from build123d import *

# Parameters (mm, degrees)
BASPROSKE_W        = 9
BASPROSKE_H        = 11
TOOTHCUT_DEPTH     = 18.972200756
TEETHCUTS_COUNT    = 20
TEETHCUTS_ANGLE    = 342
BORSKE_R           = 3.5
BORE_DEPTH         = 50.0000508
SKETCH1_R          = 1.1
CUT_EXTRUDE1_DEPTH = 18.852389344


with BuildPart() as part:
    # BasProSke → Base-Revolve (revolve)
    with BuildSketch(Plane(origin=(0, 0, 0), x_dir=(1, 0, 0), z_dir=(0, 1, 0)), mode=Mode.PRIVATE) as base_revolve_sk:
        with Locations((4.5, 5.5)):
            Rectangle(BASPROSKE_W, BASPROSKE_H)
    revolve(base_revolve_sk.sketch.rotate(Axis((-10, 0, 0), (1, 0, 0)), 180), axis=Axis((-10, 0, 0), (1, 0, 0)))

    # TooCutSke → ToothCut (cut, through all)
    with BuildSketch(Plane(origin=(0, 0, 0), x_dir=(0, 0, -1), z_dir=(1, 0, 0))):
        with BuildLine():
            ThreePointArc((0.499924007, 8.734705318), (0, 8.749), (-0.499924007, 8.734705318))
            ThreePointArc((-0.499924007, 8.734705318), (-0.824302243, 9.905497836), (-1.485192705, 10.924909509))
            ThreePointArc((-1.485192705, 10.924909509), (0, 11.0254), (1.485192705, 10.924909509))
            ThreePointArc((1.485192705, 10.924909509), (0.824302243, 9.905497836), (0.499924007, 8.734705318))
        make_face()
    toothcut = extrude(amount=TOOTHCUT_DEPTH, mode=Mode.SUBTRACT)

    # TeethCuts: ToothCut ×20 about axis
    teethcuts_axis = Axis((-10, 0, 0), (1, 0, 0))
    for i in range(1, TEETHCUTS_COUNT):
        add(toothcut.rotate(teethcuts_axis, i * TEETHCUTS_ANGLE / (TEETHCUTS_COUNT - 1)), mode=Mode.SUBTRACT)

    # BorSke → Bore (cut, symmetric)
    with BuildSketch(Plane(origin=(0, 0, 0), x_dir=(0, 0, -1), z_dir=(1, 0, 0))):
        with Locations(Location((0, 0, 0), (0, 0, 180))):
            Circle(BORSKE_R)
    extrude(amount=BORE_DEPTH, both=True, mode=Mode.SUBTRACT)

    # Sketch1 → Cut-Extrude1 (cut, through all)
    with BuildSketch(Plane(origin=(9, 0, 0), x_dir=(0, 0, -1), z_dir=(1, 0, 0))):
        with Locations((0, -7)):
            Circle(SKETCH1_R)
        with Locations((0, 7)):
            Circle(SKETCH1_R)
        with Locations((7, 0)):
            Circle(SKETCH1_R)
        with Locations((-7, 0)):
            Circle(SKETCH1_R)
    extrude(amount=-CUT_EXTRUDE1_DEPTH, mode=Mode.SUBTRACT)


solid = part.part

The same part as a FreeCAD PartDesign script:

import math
import FreeCAD as App
import Part
import Sketcher

V = App.Vector
Q = App.Units.Quantity


def add_polygon(sketch, points):
    """Adds a closed chain of lines whose ends are joined by coincident constraints."""
    first, n = sketch.GeometryCount, len(points)
    for a, b in zip(points, points[1:] + points[:1]):
        sketch.addGeometry(Part.LineSegment(App.Vector(*a, 0), App.Vector(*b, 0)), False)
    for i in range(n):
        sketch.addConstraint(Sketcher.Constraint("Coincident", first + i, 2, first + (i + 1) % n, 1))

doc = App.newDocument("Part")
params = doc.addObject("Spreadsheet::Sheet", "Params")
for row, (alias, value) in enumerate([
    ("sketch1_width", "9 mm"),
    ("sketch1_height", "11 mm"),
    ("revolution_angle", "360 deg"),
    ("sketch2_radius", "4 mm"),
    ("sketch3_diameter", "7 mm"),
    ("pocket2_length", "100.000102 mm"),
    ("sketch4_diameter", "2.2 mm"),
], start=1):
    params.set(f"A{row}", alias)
    params.set(f"B{row}", "=" + value)
    params.setAlias(f"B{row}", alias)

body = doc.addObject("PartDesign::Body", "Body")

sketch1 = body.newObject("Sketcher::SketchObject", "Sketch")
sketch1.AttachmentSupport = (doc.getObject("XZ_Plane"), [""])
sketch1.MapMode = "FlatFace"
add_polygon(sketch1, [(0, -11), (0, 0), (9, 0), (9, -11)])
sketch1.addConstraint([
    Sketcher.Constraint("Vertical", 0),
    Sketcher.Constraint("Horizontal", 1),
    Sketcher.Constraint("Vertical", 2),
    Sketcher.Constraint("Horizontal", 3),
    Sketcher.Constraint("Coincident", 0, 2, -1, 1),
    Sketcher.Constraint("DistanceX", 1, 1, 1, 2, Q("9 mm")),
    Sketcher.Constraint("DistanceY", 0, 1, 0, 2, Q("11 mm")),
])
sketch1.setExpression("Constraints[9]", "Params.sketch1_width")
sketch1.setExpression("Constraints[10]", "Params.sketch1_height")
revolution = body.newObject("PartDesign::Revolution", "Revolution")
revolution.Profile = sketch1
revolution.ReferenceAxis = (sketch1, ["H_Axis"])
revolution.setExpression("Angle", "Params.revolution_angle")

sketch2 = body.newObject("Sketcher::SketchObject", "Sketch001")
sketch2.AttachmentSupport = (doc.getObject("YZ_Plane"), [""])
sketch2.MapMode = "FlatFace"
sketch2.addGeometry([
    Part.ArcOfCircle(Part.Circle(V(0, 0, 0), V(0, 0, 1), 8.749), math.radians(-3.275705), math.radians(3.275705)),
    Part.ArcOfCircle(Part.Circle(V(8.264487, -4.47219, 0), V(0, 0, 1), 4), math.radians(48.309566), math.radians(83.249005)),
    Part.ArcOfCircle(Part.Circle(V(0, 0, 0), V(0, 0, 1), 11.0254), math.radians(-7.741647), math.radians(7.741647)),
    Part.ArcOfCircle(Part.Circle(V(8.264487, 4.47219, 0), V(0, 0, 1), 4), math.radians(-83.249005), math.radians(-48.309566)),
], False)
sketch2.addConstraint([
    Sketcher.Constraint("Coincident", 0, 1, 1, 2),
    Sketcher.Constraint("Coincident", 1, 1, 2, 1),
    Sketcher.Constraint("Coincident", 2, 2, 3, 2),
    Sketcher.Constraint("Coincident", 3, 1, 0, 2),
    Sketcher.Constraint("Coincident", 0, 3, -1, 1),
    Sketcher.Constraint("Coincident", 2, 3, -1, 1),
    Sketcher.Constraint("Equal", 1, 3),
    Sketcher.Constraint("Symmetric", 1, 3, 3, 3, -1),
    Sketcher.Constraint("Radius", 1, Q("4 mm")),
    Sketcher.Constraint("Radius", 0, Q("8.749 mm")),
    Sketcher.Constraint("Radius", 2, Q("11.0254 mm")),
    Sketcher.Constraint("DistanceY", 1, 3, -1, 1, Q("4.47219 mm")),
    Sketcher.Constraint("DistanceX", -1, 1, 1, 1, Q("10.92491 mm")),
])
sketch2.setExpression("Constraints[8]", "Params.sketch2_radius")
pocket1 = body.newObject("PartDesign::Pocket", "Pocket")
pocket1.Profile = sketch2
pocket1.Type = "ThroughAll"
pocket1.Reversed = True
doc.recompute()

polarpattern = body.newObject("PartDesign::PolarPattern", "PolarPattern")
polarpattern.Originals = [pocket1]
polarpattern.Axis = (doc.getObject("X_Axis"), [""])
polarpattern.Angle = 360
polarpattern.Occurrences = 20
body.Tip = polarpattern

sketch3 = body.newObject("Sketcher::SketchObject", "Sketch002")
sketch3.AttachmentSupport = (doc.getObject("YZ_Plane"), [""])
sketch3.MapMode = "FlatFace"
sketch3.addGeometry(Part.Circle(V(0, 0, 0), V(0, 0, 1), 3.5), False)
sketch3.addConstraint([
    Sketcher.Constraint("Coincident", 0, 3, -1, 1),
    Sketcher.Constraint("Diameter", 0, Q("7 mm")),
])
sketch3.setExpression("Constraints[1]", "Params.sketch3_diameter")
pocket2 = body.newObject("PartDesign::Pocket", "Pocket001")
pocket2.Profile = sketch3
pocket2.setExpression("Length", "Params.pocket2_length")
pocket2.Midplane = True

sketch4 = body.newObject("Sketcher::SketchObject", "Sketch003")
sketch4.AttachmentSupport = (doc.getObject("YZ_Plane"), [""])
sketch4.MapMode = "FlatFace"
sketch4.AttachmentOffset = App.Placement(V(0, 0, 9), App.Rotation())
sketch4.addGeometry([
    Part.Circle(V(-7, 0, 0), V(0, 0, 1), 1.1),
    Part.Circle(V(7, 0, 0), V(0, 0, 1), 1.1),
    Part.Circle(V(0, -7, 0), V(0, 0, 1), 1.1),
    Part.Circle(V(0, 7, 0), V(0, 0, 1), 1.1),
], False)
sketch4.addConstraint([
    Sketcher.Constraint("Equal", 0, 1),
    Sketcher.Constraint("Equal", 1, 2),
    Sketcher.Constraint("Equal", 2, 3),
    Sketcher.Constraint("Symmetric", 0, 3, 1, 3, -1, 1),
    Sketcher.Constraint("Symmetric", 2, 3, 3, 3, -1, 1),
    Sketcher.Constraint("PointOnObject", 0, 3, -1),
    Sketcher.Constraint("PointOnObject", 2, 3, -2),
    Sketcher.Constraint("Diameter", 0, Q("2.2 mm")),
    Sketcher.Constraint("DistanceX", 0, 3, -1, 1, Q("7 mm")),
    Sketcher.Constraint("DistanceY", 2, 3, -1, 1, Q("7 mm")),
])
sketch4.setExpression("Constraints[7]", "Params.sketch4_diameter")
pocket3 = body.newObject("PartDesign::Pocket", "Pocket002")
pocket3.Profile = sketch4
pocket3.Type = "ThroughAll"

doc.recompute()
